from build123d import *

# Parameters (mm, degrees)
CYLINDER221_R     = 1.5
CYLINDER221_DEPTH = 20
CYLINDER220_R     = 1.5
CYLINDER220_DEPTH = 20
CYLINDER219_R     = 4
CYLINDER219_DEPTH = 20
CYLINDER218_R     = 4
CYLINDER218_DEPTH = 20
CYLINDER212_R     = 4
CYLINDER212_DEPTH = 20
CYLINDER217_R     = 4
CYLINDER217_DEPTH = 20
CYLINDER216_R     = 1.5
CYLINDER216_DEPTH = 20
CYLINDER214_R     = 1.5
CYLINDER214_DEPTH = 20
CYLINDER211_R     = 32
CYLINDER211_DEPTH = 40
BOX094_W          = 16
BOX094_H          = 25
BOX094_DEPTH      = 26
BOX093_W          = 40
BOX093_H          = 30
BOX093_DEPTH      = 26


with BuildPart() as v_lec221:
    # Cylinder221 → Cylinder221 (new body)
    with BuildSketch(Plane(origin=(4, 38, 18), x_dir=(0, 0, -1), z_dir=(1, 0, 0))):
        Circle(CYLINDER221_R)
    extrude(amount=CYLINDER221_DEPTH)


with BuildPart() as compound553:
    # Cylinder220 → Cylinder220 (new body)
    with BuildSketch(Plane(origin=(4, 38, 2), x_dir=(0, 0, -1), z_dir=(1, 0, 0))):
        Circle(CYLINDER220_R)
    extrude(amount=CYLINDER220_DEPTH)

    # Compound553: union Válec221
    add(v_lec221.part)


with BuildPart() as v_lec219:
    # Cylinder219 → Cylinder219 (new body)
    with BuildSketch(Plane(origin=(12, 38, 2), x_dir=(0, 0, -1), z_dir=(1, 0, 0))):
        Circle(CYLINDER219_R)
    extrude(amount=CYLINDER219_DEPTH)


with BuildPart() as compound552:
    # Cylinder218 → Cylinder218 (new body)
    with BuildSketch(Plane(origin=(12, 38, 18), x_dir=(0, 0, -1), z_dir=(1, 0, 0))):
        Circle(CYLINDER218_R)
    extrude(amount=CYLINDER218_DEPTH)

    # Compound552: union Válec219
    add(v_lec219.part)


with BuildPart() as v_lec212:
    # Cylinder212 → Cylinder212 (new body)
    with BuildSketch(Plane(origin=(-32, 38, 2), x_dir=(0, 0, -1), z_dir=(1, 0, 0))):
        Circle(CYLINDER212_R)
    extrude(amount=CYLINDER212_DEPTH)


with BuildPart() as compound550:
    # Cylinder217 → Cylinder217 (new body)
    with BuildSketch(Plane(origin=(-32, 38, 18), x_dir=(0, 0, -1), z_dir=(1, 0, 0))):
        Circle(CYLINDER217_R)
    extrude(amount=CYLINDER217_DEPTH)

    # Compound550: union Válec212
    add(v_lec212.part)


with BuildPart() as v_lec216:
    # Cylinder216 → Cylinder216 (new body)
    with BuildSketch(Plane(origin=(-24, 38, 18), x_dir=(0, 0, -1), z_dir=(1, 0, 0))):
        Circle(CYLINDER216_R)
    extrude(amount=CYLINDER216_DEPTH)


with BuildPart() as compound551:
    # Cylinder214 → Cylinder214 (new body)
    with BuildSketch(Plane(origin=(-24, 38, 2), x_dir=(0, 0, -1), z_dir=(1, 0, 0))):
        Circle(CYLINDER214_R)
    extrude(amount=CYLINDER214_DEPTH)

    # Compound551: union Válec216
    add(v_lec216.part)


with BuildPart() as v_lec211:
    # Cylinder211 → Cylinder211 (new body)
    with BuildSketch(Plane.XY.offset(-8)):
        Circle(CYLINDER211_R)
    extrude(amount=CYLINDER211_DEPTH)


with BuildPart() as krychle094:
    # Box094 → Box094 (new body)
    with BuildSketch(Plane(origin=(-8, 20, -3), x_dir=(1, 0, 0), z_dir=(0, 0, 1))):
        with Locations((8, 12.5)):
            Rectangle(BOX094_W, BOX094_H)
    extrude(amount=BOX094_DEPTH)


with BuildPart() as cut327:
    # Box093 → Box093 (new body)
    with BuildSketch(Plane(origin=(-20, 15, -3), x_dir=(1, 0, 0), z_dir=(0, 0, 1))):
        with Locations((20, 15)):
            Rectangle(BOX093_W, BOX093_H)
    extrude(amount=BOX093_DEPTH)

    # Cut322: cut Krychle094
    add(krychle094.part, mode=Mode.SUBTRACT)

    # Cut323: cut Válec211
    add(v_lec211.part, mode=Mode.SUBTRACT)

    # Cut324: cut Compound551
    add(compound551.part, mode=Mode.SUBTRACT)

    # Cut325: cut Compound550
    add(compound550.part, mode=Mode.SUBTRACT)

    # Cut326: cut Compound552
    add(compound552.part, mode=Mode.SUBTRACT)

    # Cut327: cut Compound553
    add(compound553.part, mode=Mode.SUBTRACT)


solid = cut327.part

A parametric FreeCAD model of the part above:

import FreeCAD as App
import Part
import Sketcher


def add_polygon(sketch, points):
    """Adds a closed chain of lines whose ends are joined by coincident constraints."""
    first, n = sketch.GeometryCount, len(points)
    for a, b in zip(points, points[1:] + points[:1]):
        sketch.addGeometry(Part.LineSegment(App.Vector(*a, 0), App.Vector(*b, 0)), False)
    for i in range(n):
        sketch.addConstraint(Sketcher.Constraint("Coincident", first + i, 2, first + (i + 1) % n, 1))

doc = App.newDocument("Part")
params = doc.addObject("Spreadsheet::Sheet", "Params")
for row, (alias, value) in enumerate([
    ("sketch1_diameter", "3 mm"),
    ("pad1_length", "20 mm"),
    ("sketch2_diameter", "3 mm"),
    ("pad2_length", "20 mm"),
    ("sketch3_diameter", "8 mm"),
    ("pad3_length", "20 mm"),
    ("sketch4_diameter", "8 mm"),
    ("pad4_length", "20 mm"),
    ("sketch5_diameter", "8 mm"),
    ("pad5_length", "20 mm"),
    ("sketch6_diameter", "8 mm"),
    ("pad6_length", "20 mm"),
    ("sketch7_diameter", "3 mm"),
    ("pad7_length", "20 mm"),
    ("sketch8_diameter", "3 mm"),
    ("pad8_length", "20 mm"),
    ("sketch9_diameter", "64 mm"),
    ("pad9_length", "40 mm"),
    ("sketch10_width", "16 mm"),
    ("sketch10_height", "25 mm"),
    ("pad10_length", "26 mm"),
    ("sketch11_width", "40 mm"),
    ("sketch11_height", "30 mm"),
    ("pad11_length", "26 mm"),
], start=1):
    params.set(f"A{row}", alias)
    params.set(f"B{row}", "=" + value)
    params.setAlias(f"B{row}", alias)

body = doc.addObject("PartDesign::Body", "Body")

# Sketch on YZ plane
sketch1 = body.newObject("Sketcher::SketchObject", "Sketch")
sketch1.AttachmentSupport = (doc.getObject("YZ_Plane"), [""])
sketch1.MapMode = "FlatFace"
sketch1.AttachmentOffset = App.Placement(App.Vector(0, 0, 4), App.Rotation())
sketch1.addGeometry(Part.Circle(App.Vector(38, 18, 0), App.Vector(0, 0, 1), 1.5), False)
sketch1.addConstraint([
    Sketcher.Constraint("Diameter", 0, 3.0),
    Sketcher.Constraint("DistanceX", -1, 1, 0, 3, 38.0),
    Sketcher.Constraint("DistanceY", -1, 1, 0, 3, 18.0),
])
sketch1.setExpression("Constraints[0]", "Params.sketch1_diameter")
pad1 = body.newObject("PartDesign::Pad", "Pad")
pad1.Profile = sketch1
pad1.setExpression("Length", "Params.pad1_length")
body2 = doc.addObject("PartDesign::Body", "Body001")
body2.AllowCompound = True

# Sketch on YZ plane
sketch2 = body2.newObject("Sketcher::SketchObject", "Sketch001")
sketch2.AttachmentSupport = (doc.getObject("YZ_Plane001"), [""])
sketch2.MapMode = "FlatFace"
sketch2.AttachmentOffset = App.Placement(App.Vector(0, 0, 4), App.Rotation())
sketch2.addGeometry(Part.Circle(App.Vector(38, 2, 0), App.Vector(0, 0, 1), 1.5), False)
sketch2.addConstraint([
    Sketcher.Constraint("Diameter", 0, 3.0),
    Sketcher.Constraint("DistanceX", -1, 1, 0, 3, 38.0),
    Sketcher.Constraint("DistanceY", -1, 1, 0, 3, 2.0),
])
sketch2.setExpression("Constraints[0]", "Params.sketch2_diameter")
pad2 = body2.newObject("PartDesign::Pad", "Pad001")
pad2.Profile = sketch2
pad2.setExpression("Length", "Params.pad2_length")
doc.recompute()

boolean = body2.newObject("PartDesign::Boolean", "Boolean")
boolean.Type = "Fuse"
boolean.addObjects([body])
body3 = doc.addObject("PartDesign::Body", "Body002")

# Sketch on YZ plane
sketch3 = body3.newObject("Sketcher::SketchObject", "Sketch002")
sketch3.AttachmentSupport = (doc.getObject("YZ_Plane002"), [""])
sketch3.MapMode = "FlatFace"
sketch3.AttachmentOffset = App.Placement(App.Vector(0, 0, 12), App.Rotation())
sketch3.addGeometry(Part.Circle(App.Vector(38, 2, 0), App.Vector(0, 0, 1), 4), False)
sketch3.addConstraint([
    Sketcher.Constraint("Diameter", 0, 8.0),
    Sketcher.Constraint("DistanceX", -1, 1, 0, 3, 38.0),
    Sketcher.Constraint("DistanceY", -1, 1, 0, 3, 2.0),
])
sketch3.setExpression("Constraints[0]", "Params.sketch3_diameter")
pad3 = body3.newObject("PartDesign::Pad", "Pad002")
pad3.Profile = sketch3
pad3.setExpression("Length", "Params.pad3_length")
body4 = doc.addObject("PartDesign::Body", "Body003")
body4.AllowCompound = True

# Sketch on YZ plane
sketch4 = body4.newObject("Sketcher::SketchObject", "Sketch003")
sketch4.AttachmentSupport = (doc.getObject("YZ_Plane003"), [""])
sketch4.MapMode = "FlatFace"
sketch4.AttachmentOffset = App.Placement(App.Vector(0, 0, 12), App.Rotation())
sketch4.addGeometry(Part.Circle(App.Vector(38, 18, 0), App.Vector(0, 0, 1), 4), False)
sketch4.addConstraint([
    Sketcher.Constraint("Diameter", 0, 8.0),
    Sketcher.Constraint("DistanceX", -1, 1, 0, 3, 38.0),
    Sketcher.Constraint("DistanceY", -1, 1, 0, 3, 18.0),
])
sketch4.setExpression("Constraints[0]", "Params.sketch4_diameter")
pad4 = body4.newObject("PartDesign::Pad", "Pad003")
pad4.Profile = sketch4
pad4.setExpression("Length", "Params.pad4_length")
doc.recompute()

boolean2 = body4.newObject("PartDesign::Boolean", "Boolean001")
boolean2.Type = "Fuse"
boolean2.addObjects([body3])
body5 = doc.addObject("PartDesign::Body", "Body004")

# Sketch on YZ plane
sketch5 = body5.newObject("Sketcher::SketchObject", "Sketch004")
sketch5.AttachmentSupport = (doc.getObject("YZ_Plane004"), [""])
sketch5.MapMode = "FlatFace"
sketch5.AttachmentOffset = App.Placement(App.Vector(0, 0, -32), App.Rotation())
sketch5.addGeometry(Part.Circle(App.Vector(38, 2, 0), App.Vector(0, 0, 1), 4), False)
sketch5.addConstraint([
    Sketcher.Constraint("Diameter", 0, 8.0),
    Sketcher.Constraint("DistanceX", -1, 1, 0, 3, 38.0),
    Sketcher.Constraint("DistanceY", -1, 1, 0, 3, 2.0),
])
sketch5.setExpression("Constraints[0]", "Params.sketch5_diameter")
pad5 = body5.newObject("PartDesign::Pad", "Pad004")
pad5.Profile = sketch5
pad5.setExpression("Length", "Params.pad5_length")
body6 = doc.addObject("PartDesign::Body", "Body005")
body6.AllowCompound = True

# Sketch on YZ plane
sketch6 = body6.newObject("Sketcher::SketchObject", "Sketch005")
sketch6.AttachmentSupport = (doc.getObject("YZ_Plane005"), [""])
sketch6.MapMode = "FlatFace"
sketch6.AttachmentOffset = App.Placement(App.Vector(0, 0, -32), App.Rotation())
sketch6.addGeometry(Part.Circle(App.Vector(38, 18, 0), App.Vector(0, 0, 1), 4), False)
sketch6.addConstraint([
    Sketcher.Constraint("Diameter", 0, 8.0),
    Sketcher.Constraint("DistanceX", -1, 1, 0, 3, 38.0),
    Sketcher.Constraint("DistanceY", -1, 1, 0, 3, 18.0),
])
sketch6.setExpression("Constraints[0]", "Params.sketch6_diameter")
pad6 = body6.newObject("PartDesign::Pad", "Pad005")
pad6.Profile = sketch6
pad6.setExpression("Length", "Params.pad6_length")
doc.recompute()

boolean3 = body6.newObject("PartDesign::Boolean", "Boolean002")
boolean3.Type = "Fuse"
boolean3.addObjects([body5])
body7 = doc.addObject("PartDesign::Body", "Body006")

# Sketch on YZ plane
sketch7 = body7.newObject("Sketcher::SketchObject", "Sketch006")
sketch7.AttachmentSupport = (doc.getObject("YZ_Plane006"), [""])
sketch7.MapMode = "FlatFace"
sketch7.AttachmentOffset = App.Placement(App.Vector(0, 0, -24), App.Rotation())
sketch7.addGeometry(Part.Circle(App.Vector(38, 18, 0), App.Vector(0, 0, 1), 1.5), False)
sketch7.addConstraint([
    Sketcher.Constraint("Diameter", 0, 3.0),
    Sketcher.Constraint("DistanceX", -1, 1, 0, 3, 38.0),
    Sketcher.Constraint("DistanceY", -1, 1, 0, 3, 18.0),
])
sketch7.setExpression("Constraints[0]", "Params.sketch7_diameter")
pad7 = body7.newObject("PartDesign::Pad", "Pad006")
pad7.Profile = sketch7
pad7.setExpression("Length", "Params.pad7_length")
body8 = doc.addObject("PartDesign::Body", "Body007")
body8.AllowCompound = True

# Sketch on YZ plane
sketch8 = body8.newObject("Sketcher::SketchObject", "Sketch007")
sketch8.AttachmentSupport = (doc.getObject("YZ_Plane007"), [""])
sketch8.MapMode = "FlatFace"
sketch8.AttachmentOffset = App.Placement(App.Vector(0, 0, -24), App.Rotation())
sketch8.addGeometry(Part.Circle(App.Vector(38, 2, 0), App.Vector(0, 0, 1), 1.5), False)
sketch8.addConstraint([
    Sketcher.Constraint("Diameter", 0, 3.0),
    Sketcher.Constraint("DistanceX", -1, 1, 0, 3, 38.0),
    Sketcher.Constraint("DistanceY", -1, 1, 0, 3, 2.0),
])
sketch8.setExpression("Constraints[0]", "Params.sketch8_diameter")
pad8 = body8.newObject("PartDesign::Pad", "Pad007")
pad8.Profile = sketch8
pad8.setExpression("Length", "Params.pad8_length")
doc.recompute()

boolean4 = body8.newObject("PartDesign::Boolean", "Boolean003")
boolean4.Type = "Fuse"
boolean4.addObjects([body7])
body9 = doc.addObject("PartDesign::Body", "Body008")

# Sketch on XY plane
sketch9 = body9.newObject("Sketcher::SketchObject", "Sketch008")
sketch9.AttachmentSupport = (doc.getObject("XY_Plane008"), [""])
sketch9.MapMode = "FlatFace"
sketch9.AttachmentOffset = App.Placement(App.Vector(0, 0, -8), App.Rotation())
sketch9.addGeometry(Part.Circle(App.Vector(0, 0, 0), App.Vector(0, 0, 1), 32), False)
sketch9.addConstraint([
    Sketcher.Constraint("Coincident", 0, 3, -1, 1),
    Sketcher.Constraint("Diameter", 0, 64.0),
])
sketch9.setExpression("Constraints[1]", "Params.sketch9_diameter")
pad9 = body9.newObject("PartDesign::Pad", "Pad008")
pad9.Profile = sketch9
pad9.setExpression("Length", "Params.pad9_length")
body10 = doc.addObject("PartDesign::Body", "Body009")

# Sketch on XY plane
sketch10 = body10.newObject("Sketcher::SketchObject", "Sketch009")
sketch10.AttachmentSupport = (doc.getObject("XY_Plane009"), [""])
sketch10.MapMode = "FlatFace"
sketch10.AttachmentOffset = App.Placement(App.Vector(0, 0, -3), App.Rotation())
add_polygon(sketch10, [(-8, 45), (-8, 20), (8, 20), (8, 45)])  # lines 0-3
sketch10.addConstraint([
    Sketcher.Constraint("Vertical", 0),
    Sketcher.Constraint("Horizontal", 1),
    Sketcher.Constraint("Vertical", 2),
    Sketcher.Constraint("Horizontal", 3),
    Sketcher.Constraint("DistanceX", 1, 1, 1, 2, 16.0),
    Sketcher.Constraint("DistanceY", 0, 2, 0, 1, 25.0),
    Sketcher.Constraint("DistanceX", 0, 2, -1, 1, 8.0),
    Sketcher.Constraint("DistanceY", -1, 1, 0, 2, 20.0),
])
sketch10.setExpression("Constraints[8]", "Params.sketch10_width")
sketch10.setExpression("Constraints[9]", "Params.sketch10_height")
pad10 = body10.newObject("PartDesign::Pad", "Pad009")
pad10.Profile = sketch10
pad10.setExpression("Length", "Params.pad10_length")
body11 = doc.addObject("PartDesign::Body", "Body010")
body11.AllowCompound = True

# Sketch on XY plane
sketch11 = body11.newObject("Sketcher::SketchObject", "Sketch010")
sketch11.AttachmentSupport = (doc.getObject("XY_Plane010"), [""])
sketch11.MapMode = "FlatFace"
sketch11.AttachmentOffset = App.Placement(App.Vector(0, 0, -3), App.Rotation())
add_polygon(sketch11, [(-20, 45), (-20, 15), (20, 15), (20, 45)])  # lines 0-3
sketch11.addConstraint([
    Sketcher.Constraint("Vertical", 0),
    Sketcher.Constraint("Horizontal", 1),
    Sketcher.Constraint("Vertical", 2),
    Sketcher.Constraint("Horizontal", 3),
    Sketcher.Constraint("DistanceX", 1, 1, 1, 2, 40.0),
    Sketcher.Constraint("DistanceY", 0, 2, 0, 1, 30.0),
    Sketcher.Constraint("DistanceX", 0, 2, -1, 1, 20.0),
    Sketcher.Constraint("DistanceY", -1, 1, 0, 2, 15.0),
])
sketch11.setExpression("Constraints[8]", "Params.sketch11_width")
sketch11.setExpression("Constraints[9]", "Params.sketch11_height")
pad11 = body11.newObject("PartDesign::Pad", "Pad010")
pad11.Profile = sketch11
pad11.setExpression("Length", "Params.pad11_length")
doc.recompute()

boolean5 = body11.newObject("PartDesign::Boolean", "Boolean004")
boolean5.Type = "Cut"
boolean5.addObjects([body10])
doc.recompute()

boolean6 = body11.newObject("PartDesign::Boolean", "Boolean005")
boolean6.Type = "Cut"
boolean6.addObjects([body9])
doc.recompute()

boolean7 = body11.newObject("PartDesign::Boolean", "Boolean006")
boolean7.Type = "Cut"
boolean7.addObjects([body8])
doc.recompute()

boolean8 = body11.newObject("PartDesign::Boolean", "Boolean007")
boolean8.Type = "Cut"
boolean8.addObjects([body6])
doc.recompute()

boolean9 = body11.newObject("PartDesign::Boolean", "Boolean008")
boolean9.Type = "Cut"
boolean9.addObjects([body4])
doc.recompute()

boolean10 = body11.newObject("PartDesign::Boolean", "Boolean009")
boolean10.Type = "Cut"
boolean10.addObjects([body2])

doc.recompute()
